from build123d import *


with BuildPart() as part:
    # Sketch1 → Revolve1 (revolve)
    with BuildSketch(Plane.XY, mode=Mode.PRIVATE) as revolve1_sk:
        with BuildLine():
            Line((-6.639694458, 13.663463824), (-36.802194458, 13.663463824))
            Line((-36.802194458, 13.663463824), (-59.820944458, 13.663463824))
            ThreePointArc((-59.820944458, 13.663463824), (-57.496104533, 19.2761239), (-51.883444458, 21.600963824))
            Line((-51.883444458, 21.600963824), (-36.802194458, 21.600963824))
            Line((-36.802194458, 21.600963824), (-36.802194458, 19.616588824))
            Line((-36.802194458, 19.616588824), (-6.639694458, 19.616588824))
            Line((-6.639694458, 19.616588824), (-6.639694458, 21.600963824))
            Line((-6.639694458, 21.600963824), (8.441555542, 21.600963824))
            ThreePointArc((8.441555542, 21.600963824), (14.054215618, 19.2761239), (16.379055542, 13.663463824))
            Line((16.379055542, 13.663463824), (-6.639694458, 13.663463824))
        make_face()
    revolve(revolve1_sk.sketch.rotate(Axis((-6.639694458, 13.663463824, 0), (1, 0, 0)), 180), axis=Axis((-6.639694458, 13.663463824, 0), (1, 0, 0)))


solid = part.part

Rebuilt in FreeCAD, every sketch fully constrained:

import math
import FreeCAD as App
import Part
import Sketcher
from FreeCAD import Vector
Q = App.Units.Quantity

doc = App.newDocument("Part")
body = doc.addObject("PartDesign::Body", "Body")

sketch1 = body.newObject("Sketcher::SketchObject", "Sketch")
sketch1.AttachmentSupport = (doc.getObject("XY_Plane"), [""])
sketch1.MapMode = "FlatFace"
sketch1.addGeometry([
    Part.ArcOfCircle(Part.Circle(Vector(-51.883444, 13.663464, 0), Vector(0, 0, 1), 7.9375), math.radians(90), math.radians(180)),
    Part.LineSegment(Vector(-59.820944, 13.663464, 0), Vector(16.379056, 13.663464, 0)),
    Part.ArcOfCircle(Part.Circle(Vector(8.441556, 13.663464, 0), Vector(0, 0, 1), 7.9375), math.radians(0), math.radians(90)),
    Part.LineSegment(Vector(8.441556, 21.600964, 0), Vector(-6.639694, 21.600964, 0)),
    Part.LineSegment(Vector(-6.639694, 21.600964, 0), Vector(-6.639694, 19.616589, 0)),
    Part.LineSegment(Vector(-6.639694, 19.616589, 0), Vector(-36.802194, 19.616589, 0)),
    Part.LineSegment(Vector(-36.802194, 19.616589, 0), Vector(-36.802194, 21.600964, 0)),
    Part.LineSegment(Vector(-36.802194, 21.600964, 0), Vector(-51.883444, 21.600964, 0)),
], False)
sketch1.addGeometry(Part.LineSegment(Vector(-59.820944, 13.663464, 0), Vector(16.379056, 13.663464, 0)), True)
sketch1.addConstraint([
    Sketcher.Constraint("Coincident", 0, 2, 1, 1),
    Sketcher.Constraint("Coincident", 1, 2, 2, 1),
    Sketcher.Constraint("Tangent", 2, 2, 3, 1),
    Sketcher.Constraint("Coincident", 3, 2, 4, 1),
    Sketcher.Constraint("Coincident", 4, 2, 5, 1),
    Sketcher.Constraint("Coincident", 5, 2, 6, 1),
    Sketcher.Constraint("Coincident", 6, 2, 7, 1),
    Sketcher.Constraint("Tangent", 7, 2, 0, 1),
    Sketcher.Constraint("Horizontal", 1),
    Sketcher.Constraint("Horizontal", 3),
    Sketcher.Constraint("Vertical", 4),
    Sketcher.Constraint("Horizontal", 5),
    Sketcher.Constraint("Vertical", 6),
    Sketcher.Constraint("Horizontal", 7),
    Sketcher.Constraint("Horizontal", 8),
    Sketcher.Constraint("Coincident", 8, 1, 0, 2),
    Sketcher.Constraint("Equal", 0, 2),
    Sketcher.Constraint("Horizontal", 0, 3, 2, 3),
    Sketcher.Constraint("Horizontal", 2, 3, 0, 2),
    Sketcher.Constraint("Equal", 3, 7),
    Sketcher.Constraint("Equal", 1, 8),
    Sketcher.Constraint("DistanceX", 1, 1, 1, 2, Q("3 in")),
    Sketcher.Constraint("Radius", 0, Q("0.3125 in")),
    Sketcher.Constraint("DistanceX", 3, 2, 3, 1, Q("0.59375 in")),
    Sketcher.Constraint("DistanceY", 4, 2, 4, 1, Q("0.078125 in")),
    Sketcher.Constraint("DistanceY", -1, 1, 4, 2, 19.616589),
    Sketcher.Constraint("DistanceX", 0, 3, -1, 1, 51.883444),
])
revolution = body.newObject("PartDesign::Revolution", "Revolution")
revolution.Profile = sketch1
revolution.ReferenceAxis = (sketch1, ["Axis0"])
revolution.Angle = 360

doc.recompute()
